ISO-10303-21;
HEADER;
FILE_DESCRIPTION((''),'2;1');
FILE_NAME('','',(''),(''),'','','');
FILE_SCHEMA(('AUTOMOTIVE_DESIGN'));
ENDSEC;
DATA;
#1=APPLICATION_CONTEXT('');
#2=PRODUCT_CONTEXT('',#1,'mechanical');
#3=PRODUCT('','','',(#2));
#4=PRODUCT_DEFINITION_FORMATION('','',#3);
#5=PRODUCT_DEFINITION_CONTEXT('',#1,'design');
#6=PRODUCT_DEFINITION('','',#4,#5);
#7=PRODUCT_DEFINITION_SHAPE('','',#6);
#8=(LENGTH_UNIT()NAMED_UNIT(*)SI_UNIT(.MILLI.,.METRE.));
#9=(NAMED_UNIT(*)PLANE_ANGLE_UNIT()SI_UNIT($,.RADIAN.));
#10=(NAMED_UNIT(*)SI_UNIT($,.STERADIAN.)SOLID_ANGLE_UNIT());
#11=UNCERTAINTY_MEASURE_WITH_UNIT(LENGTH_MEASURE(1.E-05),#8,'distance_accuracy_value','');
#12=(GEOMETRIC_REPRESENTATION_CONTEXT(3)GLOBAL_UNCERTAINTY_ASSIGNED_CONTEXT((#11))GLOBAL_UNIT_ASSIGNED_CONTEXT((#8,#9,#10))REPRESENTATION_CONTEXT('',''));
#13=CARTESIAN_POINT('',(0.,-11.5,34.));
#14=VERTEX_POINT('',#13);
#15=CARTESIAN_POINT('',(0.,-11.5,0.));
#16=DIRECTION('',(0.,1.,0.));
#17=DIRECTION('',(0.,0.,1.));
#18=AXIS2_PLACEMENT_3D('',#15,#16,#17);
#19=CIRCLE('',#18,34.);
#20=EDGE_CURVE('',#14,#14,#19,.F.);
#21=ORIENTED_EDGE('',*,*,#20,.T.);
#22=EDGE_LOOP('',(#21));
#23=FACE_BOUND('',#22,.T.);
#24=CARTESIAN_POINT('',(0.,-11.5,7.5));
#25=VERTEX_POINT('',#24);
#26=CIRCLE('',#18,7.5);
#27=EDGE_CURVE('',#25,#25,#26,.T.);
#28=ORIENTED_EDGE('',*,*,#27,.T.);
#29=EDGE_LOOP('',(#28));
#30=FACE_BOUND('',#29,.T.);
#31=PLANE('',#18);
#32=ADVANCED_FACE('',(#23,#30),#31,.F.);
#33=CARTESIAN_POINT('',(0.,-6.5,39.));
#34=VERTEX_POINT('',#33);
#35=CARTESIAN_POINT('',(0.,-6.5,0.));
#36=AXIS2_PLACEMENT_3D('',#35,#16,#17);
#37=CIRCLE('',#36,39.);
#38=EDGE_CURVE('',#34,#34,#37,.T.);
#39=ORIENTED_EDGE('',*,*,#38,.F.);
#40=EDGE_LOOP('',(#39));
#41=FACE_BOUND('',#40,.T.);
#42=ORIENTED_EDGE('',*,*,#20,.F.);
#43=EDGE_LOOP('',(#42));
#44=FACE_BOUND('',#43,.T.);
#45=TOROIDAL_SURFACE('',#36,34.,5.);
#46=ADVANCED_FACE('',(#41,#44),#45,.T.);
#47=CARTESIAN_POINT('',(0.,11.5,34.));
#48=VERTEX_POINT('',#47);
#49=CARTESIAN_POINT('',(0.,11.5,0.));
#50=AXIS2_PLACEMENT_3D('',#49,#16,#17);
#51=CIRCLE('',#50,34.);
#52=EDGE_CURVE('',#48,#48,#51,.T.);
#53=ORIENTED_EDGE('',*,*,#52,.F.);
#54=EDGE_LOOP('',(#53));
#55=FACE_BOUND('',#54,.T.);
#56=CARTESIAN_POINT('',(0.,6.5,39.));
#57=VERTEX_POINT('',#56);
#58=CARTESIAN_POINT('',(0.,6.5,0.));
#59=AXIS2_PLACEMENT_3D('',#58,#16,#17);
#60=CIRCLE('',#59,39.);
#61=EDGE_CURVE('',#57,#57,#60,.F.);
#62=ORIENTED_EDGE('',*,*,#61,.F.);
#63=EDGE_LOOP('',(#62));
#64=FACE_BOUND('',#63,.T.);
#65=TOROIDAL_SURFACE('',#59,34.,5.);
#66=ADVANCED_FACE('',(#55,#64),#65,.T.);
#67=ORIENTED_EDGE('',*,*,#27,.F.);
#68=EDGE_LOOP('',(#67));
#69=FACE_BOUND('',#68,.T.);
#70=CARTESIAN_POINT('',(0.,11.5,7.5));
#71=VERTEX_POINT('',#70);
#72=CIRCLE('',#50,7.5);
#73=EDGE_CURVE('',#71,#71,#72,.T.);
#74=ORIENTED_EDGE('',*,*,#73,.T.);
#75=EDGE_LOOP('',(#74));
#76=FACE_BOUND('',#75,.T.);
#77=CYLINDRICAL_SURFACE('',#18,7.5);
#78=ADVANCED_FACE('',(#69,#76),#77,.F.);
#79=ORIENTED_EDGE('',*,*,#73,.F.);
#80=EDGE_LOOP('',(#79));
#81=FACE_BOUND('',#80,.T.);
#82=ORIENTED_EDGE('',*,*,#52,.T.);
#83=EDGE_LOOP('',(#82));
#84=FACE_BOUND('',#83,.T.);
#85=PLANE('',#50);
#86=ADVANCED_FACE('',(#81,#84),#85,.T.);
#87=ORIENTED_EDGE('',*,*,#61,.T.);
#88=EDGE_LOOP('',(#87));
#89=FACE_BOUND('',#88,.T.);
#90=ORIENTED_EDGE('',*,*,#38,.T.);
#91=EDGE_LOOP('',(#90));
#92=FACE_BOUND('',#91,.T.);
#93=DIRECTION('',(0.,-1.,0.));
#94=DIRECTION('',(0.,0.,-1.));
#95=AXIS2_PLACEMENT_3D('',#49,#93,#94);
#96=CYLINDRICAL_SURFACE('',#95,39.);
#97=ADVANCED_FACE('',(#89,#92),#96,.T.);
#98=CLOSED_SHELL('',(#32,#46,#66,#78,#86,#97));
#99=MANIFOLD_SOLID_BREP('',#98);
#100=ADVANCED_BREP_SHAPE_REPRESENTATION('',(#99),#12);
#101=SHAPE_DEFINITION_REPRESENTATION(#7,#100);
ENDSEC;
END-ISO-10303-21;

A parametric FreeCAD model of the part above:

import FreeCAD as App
import Part
import Sketcher

V = App.Vector


def edges_at(feature, points):
    """Names of the edges that pass closest to the given points."""
    edges = feature.Shape.Edges
    near = lambda p: min(range(len(edges)), key=lambda i: edges[i].distToShape(Part.Vertex(*p))[0])
    return sorted({f"Edge{near(p) + 1}" for p in points})

doc = App.newDocument("Part")
params = doc.addObject("Spreadsheet::Sheet", "Params")
for row, (alias, value) in enumerate([
    ("sketch1_diameter", "78 mm"),
    ("pad1_length", "23 mm"),
    ("fillet_radius", "5 mm"),
    ("sketch2_diameter", "15 mm"),
], start=1):
    params.set(f"A{row}", alias)
    params.set(f"B{row}", "=" + value)
    params.setAlias(f"B{row}", alias)

body = doc.addObject("PartDesign::Body", "Body")

# Sketch on XZ plane
sketch1 = body.newObject("Sketcher::SketchObject", "Sketch")
sketch1.AttachmentSupport = (doc.getObject("XZ_Plane"), [""])
sketch1.MapMode = "FlatFace"
sketch1.addGeometry(Part.Circle(V(0, 0, 0), V(0, 0, 1), 39), False)
sketch1.addConstraint([
    Sketcher.Constraint("Coincident", 0, 3, -1, 1),
    Sketcher.Constraint("Diameter", 0, 78.0),
])
sketch1.setExpression("Constraints[1]", "Params.sketch1_diameter")
pad1 = body.newObject("PartDesign::Pad", "Pad")
pad1.Profile = sketch1
pad1.setExpression("Length", "Params.pad1_length")
pad1.Midplane = True
doc.recompute()

fillet = body.newObject("PartDesign::Fillet", "Fillet")
fillet.Base = (pad1, edges_at(pad1, [(0, -11.5, -39), (0, 11.5, -39)]))
fillet.setExpression("Radius", "Params.fillet_radius")

# Sketch on XZ plane
sketch2 = body.newObject("Sketcher::SketchObject", "Sketch001")
sketch2.AttachmentSupport = (doc.getObject("XZ_Plane"), [""])
sketch2.MapMode = "FlatFace"
sketch2.AttachmentOffset = App.Placement(V(0, 0, -11.5), App.Rotation())
sketch2.addGeometry(Part.Circle(V(0, 0, 0), V(0, 0, 1), 8), False)
sketch2.addConstraint([
    Sketcher.Constraint("Coincident", 0, 3, -1, 1),
    Sketcher.Constraint("Diameter", 0, 15.0),
])
sketch2.setExpression("Constraints[1]", "Params.sketch2_diameter")
pocket1 = body.newObject("PartDesign::Pocket", "Pocket")
pocket1.Profile = sketch2
pocket1.Type = "ThroughAll"
pocket1.Midplane = True

doc.recompute()
